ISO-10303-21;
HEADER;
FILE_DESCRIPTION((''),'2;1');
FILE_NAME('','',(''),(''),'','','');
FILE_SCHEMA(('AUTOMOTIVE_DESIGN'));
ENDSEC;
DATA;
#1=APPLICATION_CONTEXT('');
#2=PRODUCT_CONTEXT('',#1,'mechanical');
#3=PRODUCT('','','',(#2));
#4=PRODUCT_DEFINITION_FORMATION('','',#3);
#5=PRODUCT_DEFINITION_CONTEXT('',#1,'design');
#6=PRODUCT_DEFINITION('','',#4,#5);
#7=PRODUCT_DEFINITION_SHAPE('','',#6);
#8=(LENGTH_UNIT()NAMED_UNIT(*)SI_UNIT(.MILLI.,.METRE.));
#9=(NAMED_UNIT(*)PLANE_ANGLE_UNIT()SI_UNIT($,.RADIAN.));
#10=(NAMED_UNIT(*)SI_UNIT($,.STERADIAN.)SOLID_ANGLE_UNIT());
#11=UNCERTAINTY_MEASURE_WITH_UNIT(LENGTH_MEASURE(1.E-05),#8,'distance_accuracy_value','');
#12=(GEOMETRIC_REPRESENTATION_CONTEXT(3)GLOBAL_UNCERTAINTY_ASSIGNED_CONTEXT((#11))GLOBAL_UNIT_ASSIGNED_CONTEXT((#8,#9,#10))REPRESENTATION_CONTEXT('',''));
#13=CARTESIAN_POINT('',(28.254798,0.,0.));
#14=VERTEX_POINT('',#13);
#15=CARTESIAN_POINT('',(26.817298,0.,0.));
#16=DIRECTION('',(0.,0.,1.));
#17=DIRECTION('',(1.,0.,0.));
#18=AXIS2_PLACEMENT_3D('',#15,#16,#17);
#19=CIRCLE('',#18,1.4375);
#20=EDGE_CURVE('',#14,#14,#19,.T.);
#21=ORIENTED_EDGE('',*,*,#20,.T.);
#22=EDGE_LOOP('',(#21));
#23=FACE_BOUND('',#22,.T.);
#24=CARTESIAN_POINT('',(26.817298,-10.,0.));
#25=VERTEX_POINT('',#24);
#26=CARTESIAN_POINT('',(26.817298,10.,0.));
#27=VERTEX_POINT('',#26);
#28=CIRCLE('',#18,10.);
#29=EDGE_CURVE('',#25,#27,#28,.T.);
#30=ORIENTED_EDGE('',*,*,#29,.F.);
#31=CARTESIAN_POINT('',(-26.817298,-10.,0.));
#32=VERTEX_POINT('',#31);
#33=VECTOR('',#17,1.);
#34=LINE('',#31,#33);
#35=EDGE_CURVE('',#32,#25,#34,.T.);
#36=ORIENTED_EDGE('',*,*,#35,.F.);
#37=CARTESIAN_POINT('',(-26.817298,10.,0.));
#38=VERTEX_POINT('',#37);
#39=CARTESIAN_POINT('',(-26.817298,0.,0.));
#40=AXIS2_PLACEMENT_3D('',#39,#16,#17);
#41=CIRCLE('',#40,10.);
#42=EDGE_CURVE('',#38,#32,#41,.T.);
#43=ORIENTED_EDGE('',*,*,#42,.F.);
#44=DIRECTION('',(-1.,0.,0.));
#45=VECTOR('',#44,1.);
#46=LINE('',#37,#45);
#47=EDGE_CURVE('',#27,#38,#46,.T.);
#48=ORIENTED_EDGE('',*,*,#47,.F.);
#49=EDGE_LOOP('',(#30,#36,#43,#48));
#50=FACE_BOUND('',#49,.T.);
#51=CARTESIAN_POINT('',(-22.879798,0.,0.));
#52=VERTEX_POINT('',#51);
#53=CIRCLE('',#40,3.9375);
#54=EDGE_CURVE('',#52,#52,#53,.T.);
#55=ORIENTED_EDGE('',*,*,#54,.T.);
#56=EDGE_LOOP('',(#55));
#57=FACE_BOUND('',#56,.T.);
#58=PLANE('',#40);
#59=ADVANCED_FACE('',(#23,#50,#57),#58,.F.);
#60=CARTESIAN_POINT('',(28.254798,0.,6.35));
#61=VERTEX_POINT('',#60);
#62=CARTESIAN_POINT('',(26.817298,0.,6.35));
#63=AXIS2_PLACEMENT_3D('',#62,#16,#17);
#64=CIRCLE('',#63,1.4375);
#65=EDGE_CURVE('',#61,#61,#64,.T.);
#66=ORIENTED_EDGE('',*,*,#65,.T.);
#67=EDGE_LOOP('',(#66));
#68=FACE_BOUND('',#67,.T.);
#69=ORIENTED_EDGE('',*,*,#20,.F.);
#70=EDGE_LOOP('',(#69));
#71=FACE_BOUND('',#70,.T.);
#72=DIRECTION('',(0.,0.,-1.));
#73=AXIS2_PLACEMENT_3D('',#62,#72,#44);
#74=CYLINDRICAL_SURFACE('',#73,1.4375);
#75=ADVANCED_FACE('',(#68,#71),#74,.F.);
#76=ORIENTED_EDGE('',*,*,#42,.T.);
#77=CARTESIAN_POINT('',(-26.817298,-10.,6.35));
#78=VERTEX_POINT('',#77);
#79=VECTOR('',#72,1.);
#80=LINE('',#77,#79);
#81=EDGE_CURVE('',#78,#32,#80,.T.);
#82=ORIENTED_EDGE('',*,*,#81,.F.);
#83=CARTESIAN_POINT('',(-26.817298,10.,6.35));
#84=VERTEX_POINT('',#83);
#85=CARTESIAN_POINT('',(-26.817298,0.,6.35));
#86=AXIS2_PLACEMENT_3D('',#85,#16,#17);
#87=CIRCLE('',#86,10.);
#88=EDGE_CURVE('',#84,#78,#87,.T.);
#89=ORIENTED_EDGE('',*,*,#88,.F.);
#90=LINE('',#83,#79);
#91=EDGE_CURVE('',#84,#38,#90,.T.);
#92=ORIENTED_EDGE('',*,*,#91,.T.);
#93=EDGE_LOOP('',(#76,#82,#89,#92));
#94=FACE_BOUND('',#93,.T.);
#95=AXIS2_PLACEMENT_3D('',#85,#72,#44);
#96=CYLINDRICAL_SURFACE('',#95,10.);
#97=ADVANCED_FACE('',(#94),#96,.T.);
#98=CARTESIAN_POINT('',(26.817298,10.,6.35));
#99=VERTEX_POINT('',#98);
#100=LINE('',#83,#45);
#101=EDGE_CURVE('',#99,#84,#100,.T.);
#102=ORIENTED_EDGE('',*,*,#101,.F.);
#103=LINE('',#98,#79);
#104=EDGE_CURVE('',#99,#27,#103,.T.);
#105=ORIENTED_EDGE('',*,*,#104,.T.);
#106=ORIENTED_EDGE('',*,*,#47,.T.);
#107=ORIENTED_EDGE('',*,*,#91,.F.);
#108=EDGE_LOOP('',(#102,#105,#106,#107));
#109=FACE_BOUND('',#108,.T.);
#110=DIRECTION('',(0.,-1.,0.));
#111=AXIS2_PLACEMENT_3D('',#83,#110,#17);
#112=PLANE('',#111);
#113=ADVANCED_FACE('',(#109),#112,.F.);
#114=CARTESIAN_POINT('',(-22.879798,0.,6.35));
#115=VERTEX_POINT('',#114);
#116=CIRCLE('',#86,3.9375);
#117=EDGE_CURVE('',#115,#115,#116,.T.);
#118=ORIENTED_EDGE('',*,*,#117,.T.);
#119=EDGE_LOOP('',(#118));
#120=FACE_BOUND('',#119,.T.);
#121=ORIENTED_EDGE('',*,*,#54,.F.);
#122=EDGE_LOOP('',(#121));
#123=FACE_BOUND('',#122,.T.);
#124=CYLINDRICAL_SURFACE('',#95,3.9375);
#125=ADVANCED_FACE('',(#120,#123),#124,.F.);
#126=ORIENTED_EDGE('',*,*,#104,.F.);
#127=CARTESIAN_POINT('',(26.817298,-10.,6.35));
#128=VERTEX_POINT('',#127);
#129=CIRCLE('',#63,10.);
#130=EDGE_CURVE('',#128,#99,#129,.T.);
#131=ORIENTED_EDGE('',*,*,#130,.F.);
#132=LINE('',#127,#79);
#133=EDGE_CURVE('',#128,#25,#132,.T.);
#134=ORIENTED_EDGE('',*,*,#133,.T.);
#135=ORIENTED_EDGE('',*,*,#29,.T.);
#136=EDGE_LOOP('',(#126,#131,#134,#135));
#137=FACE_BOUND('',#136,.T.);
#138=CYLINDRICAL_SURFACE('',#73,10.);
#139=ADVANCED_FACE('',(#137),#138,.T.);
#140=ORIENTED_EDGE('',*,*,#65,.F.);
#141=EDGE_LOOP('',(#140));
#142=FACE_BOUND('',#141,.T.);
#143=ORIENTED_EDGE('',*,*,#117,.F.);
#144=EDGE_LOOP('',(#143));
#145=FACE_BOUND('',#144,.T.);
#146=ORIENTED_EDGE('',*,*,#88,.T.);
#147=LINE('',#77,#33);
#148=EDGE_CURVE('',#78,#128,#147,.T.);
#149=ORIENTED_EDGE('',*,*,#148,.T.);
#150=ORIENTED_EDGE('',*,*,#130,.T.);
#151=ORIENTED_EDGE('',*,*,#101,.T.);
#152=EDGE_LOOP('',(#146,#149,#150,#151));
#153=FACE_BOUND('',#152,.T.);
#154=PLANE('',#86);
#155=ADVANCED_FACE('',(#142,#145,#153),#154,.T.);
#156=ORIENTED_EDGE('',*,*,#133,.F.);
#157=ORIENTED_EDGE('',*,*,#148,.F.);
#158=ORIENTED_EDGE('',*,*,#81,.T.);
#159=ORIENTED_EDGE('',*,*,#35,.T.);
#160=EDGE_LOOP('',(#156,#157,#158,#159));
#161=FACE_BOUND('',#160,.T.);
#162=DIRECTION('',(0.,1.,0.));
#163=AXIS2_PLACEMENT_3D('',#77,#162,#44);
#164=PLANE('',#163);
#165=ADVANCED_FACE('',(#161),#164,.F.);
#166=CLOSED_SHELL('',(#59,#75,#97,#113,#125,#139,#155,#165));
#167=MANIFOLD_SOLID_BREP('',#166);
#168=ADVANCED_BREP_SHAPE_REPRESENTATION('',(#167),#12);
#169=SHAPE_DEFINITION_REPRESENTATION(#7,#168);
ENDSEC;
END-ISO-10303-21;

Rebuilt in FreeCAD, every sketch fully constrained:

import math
import FreeCAD as App
import Part
import Sketcher

V = App.Vector

doc = App.newDocument("Part")
body = doc.addObject("PartDesign::Body", "Body")

# Sketch on XY plane
sketch1 = body.newObject("Sketcher::SketchObject", "Sketch")
sketch1.AttachmentSupport = (doc.getObject("XY_Plane"), [""])
sketch1.MapMode = "FlatFace"
sketch1.addGeometry([
    Part.LineSegment(V(26.8, 10, 0), V(-26.8, 10, 0)),  # 0
    Part.ArcOfCircle(Part.Circle(V(-26.8, 0, 0), V(0, 0, 1), 10), math.radians(90), math.radians(270)),  # 1
    Part.LineSegment(V(-26.8, -10, 0), V(26.8, -10, 0)),  # 2
    Part.ArcOfCircle(Part.Circle(V(26.8, 0, 0), V(0, 0, 1), 10), math.radians(-90), math.radians(90)),  # 3
    Part.Circle(V(26.8, 0, 0), V(0, 0, 1), 1.4),  # 4
    Part.Circle(V(-26.8, 0, 0), V(0, 0, 1), 3.9),  # 5
], False)
sketch1.addConstraint([
    Sketcher.Constraint("Tangent", 0, 2, 1, 1),
    Sketcher.Constraint("Tangent", 1, 2, 2, 1),
    Sketcher.Constraint("Tangent", 2, 2, 3, 1),
    Sketcher.Constraint("Tangent", 3, 2, 0, 1),
    Sketcher.Constraint("Horizontal", 0),
    Sketcher.Constraint("Horizontal", 2),
    Sketcher.Constraint("Coincident", 4, 3, 3, 3),
    Sketcher.Constraint("Coincident", 5, 3, 1, 3),
    Sketcher.Constraint("Symmetric", 1, 3, 3, 3, -1, 1),
    Sketcher.Constraint("Radius", 1, 10.0),
    Sketcher.Constraint("Diameter", 4, 2.875),
    Sketcher.Constraint("Diameter", 5, 7.875),
    Sketcher.Constraint("DistanceX", 1, 3, -1, 1, 26.817298),
])
pad1 = body.newObject("PartDesign::Pad", "Pad")
pad1.Profile = sketch1
pad1.Length = 6.35

doc.recompute()
